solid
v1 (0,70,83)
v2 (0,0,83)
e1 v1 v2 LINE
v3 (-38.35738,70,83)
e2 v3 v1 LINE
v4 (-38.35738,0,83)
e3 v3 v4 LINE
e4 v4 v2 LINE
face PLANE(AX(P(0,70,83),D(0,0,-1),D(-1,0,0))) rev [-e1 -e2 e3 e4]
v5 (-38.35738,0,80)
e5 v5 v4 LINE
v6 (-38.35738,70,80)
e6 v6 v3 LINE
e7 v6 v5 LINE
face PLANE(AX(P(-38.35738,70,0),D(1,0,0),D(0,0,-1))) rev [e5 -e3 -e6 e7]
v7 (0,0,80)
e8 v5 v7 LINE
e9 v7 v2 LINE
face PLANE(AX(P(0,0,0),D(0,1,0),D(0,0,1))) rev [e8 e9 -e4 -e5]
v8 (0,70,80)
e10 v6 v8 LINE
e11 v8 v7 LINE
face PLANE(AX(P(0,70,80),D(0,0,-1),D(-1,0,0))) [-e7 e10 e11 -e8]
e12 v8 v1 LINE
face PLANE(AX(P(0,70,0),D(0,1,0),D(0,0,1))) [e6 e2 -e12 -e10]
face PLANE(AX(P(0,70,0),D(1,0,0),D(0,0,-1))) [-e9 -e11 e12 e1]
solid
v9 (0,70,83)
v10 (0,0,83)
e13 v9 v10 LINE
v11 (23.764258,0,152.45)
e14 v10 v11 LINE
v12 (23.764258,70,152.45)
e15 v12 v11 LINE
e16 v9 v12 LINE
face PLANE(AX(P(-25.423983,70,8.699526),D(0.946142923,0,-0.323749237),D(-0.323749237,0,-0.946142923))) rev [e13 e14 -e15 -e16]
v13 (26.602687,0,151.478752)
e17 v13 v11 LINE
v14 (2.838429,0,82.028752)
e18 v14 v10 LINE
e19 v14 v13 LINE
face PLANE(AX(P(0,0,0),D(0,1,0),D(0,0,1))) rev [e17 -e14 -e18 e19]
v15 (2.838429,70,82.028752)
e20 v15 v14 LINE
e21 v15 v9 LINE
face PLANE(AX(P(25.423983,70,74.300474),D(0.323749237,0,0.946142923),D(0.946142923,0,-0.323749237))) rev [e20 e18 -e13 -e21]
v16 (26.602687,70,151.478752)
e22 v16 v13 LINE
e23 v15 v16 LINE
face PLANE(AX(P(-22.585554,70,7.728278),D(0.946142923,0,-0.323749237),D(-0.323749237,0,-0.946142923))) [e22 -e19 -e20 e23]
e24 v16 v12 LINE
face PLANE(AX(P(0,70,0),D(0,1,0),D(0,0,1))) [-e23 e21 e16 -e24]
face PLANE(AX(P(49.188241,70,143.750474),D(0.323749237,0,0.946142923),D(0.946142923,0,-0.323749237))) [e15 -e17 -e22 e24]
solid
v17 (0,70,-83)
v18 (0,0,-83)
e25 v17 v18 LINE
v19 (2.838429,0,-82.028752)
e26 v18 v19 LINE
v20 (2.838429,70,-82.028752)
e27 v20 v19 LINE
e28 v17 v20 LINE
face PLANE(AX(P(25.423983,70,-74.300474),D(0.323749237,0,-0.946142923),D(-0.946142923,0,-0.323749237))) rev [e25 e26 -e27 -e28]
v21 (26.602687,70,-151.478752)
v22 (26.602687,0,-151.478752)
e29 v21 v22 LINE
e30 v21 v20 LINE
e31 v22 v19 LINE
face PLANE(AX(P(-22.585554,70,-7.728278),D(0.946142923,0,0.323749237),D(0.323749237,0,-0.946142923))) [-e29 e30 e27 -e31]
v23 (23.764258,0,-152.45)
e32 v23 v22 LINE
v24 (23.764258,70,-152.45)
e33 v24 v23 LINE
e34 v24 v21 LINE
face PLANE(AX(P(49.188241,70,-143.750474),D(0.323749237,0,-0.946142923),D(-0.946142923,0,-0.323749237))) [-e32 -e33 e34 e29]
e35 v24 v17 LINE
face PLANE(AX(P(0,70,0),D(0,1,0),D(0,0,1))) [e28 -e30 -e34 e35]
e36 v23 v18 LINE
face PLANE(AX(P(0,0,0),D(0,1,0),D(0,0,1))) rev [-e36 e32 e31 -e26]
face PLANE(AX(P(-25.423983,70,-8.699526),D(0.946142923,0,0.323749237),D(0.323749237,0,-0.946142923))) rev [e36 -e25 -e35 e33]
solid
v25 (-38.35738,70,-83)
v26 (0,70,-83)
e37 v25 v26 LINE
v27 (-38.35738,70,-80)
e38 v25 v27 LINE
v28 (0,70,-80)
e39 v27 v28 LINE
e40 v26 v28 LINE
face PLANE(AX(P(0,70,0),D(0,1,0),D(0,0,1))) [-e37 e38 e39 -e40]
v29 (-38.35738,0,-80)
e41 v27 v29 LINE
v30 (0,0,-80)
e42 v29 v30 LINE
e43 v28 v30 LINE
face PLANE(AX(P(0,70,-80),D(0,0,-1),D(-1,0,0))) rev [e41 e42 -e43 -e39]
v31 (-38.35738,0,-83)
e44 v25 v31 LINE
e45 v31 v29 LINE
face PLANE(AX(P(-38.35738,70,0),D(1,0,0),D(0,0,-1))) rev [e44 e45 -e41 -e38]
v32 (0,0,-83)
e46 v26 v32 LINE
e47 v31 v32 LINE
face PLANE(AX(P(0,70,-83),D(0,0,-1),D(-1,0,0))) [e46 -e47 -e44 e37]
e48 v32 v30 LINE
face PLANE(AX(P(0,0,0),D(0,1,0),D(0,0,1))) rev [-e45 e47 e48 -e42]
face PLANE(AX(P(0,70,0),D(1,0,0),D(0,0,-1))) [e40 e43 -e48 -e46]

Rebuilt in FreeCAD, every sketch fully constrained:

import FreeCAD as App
import Part
import Sketcher

doc = App.newDocument("Part")
body = doc.addObject("PartDesign::Body", "Body")

sketch1 = body.newObject("Sketcher::SketchObject", "Sketch")
sketch1.AttachmentSupport = (doc.getObject("XZ_Plane"), [""])
sketch1.MapMode = "FlatFace"
sketch1.addGeometry(Part.LineSegment(App.Vector(-38.4, 80, 0), App.Vector(-38.4, 83, 0)), False)
sketch1.addGeometry(Part.LineSegment(App.Vector(-38.4, 83, 0), App.Vector(0, 83, 0)), False)
sketch1.addGeometry(Part.LineSegment(App.Vector(0, 83, 0), App.Vector(0, 80, 0)), False)
sketch1.addGeometry(Part.LineSegment(App.Vector(0, 80, 0), App.Vector(-38.4, 80, 0)), False)
sketch1.addConstraint(Sketcher.Constraint("Coincident", 0, 2, 1, 1))
sketch1.addConstraint(Sketcher.Constraint("Coincident", 1, 2, 2, 1))
sketch1.addConstraint(Sketcher.Constraint("Coincident", 2, 2, 3, 1))
sketch1.addConstraint(Sketcher.Constraint("Coincident", 3, 2, 0, 1))
sketch1.addConstraint(Sketcher.Constraint("Vertical", 0))
sketch1.addConstraint(Sketcher.Constraint("Horizontal", 1))
sketch1.addConstraint(Sketcher.Constraint("Vertical", 2))
sketch1.addConstraint(Sketcher.Constraint("Horizontal", 3))
sketch1.addConstraint(Sketcher.Constraint("PointOnObject", 1, 2, -2))
sketch1.addConstraint(Sketcher.Constraint("DistanceY", 0, 1, 0, 2, 3.0))
sketch1.addConstraint(Sketcher.Constraint("DistanceY", -1, 1, 0, 2, 83.0))
sketch1.addConstraint(Sketcher.Constraint("DistanceX", 1, 1, 1, 2, 38.35738))
pad1 = body.newObject("PartDesign::Pad", "Pad")
pad1.Profile = sketch1
pad1.Length = 70
pad1.Reversed = True
body2 = doc.addObject("PartDesign::Body", "Body001")

sketch2 = body2.newObject("Sketcher::SketchObject", "Sketch001")
sketch2.AttachmentSupport = (doc.getObject("XZ_Plane001"), [""])
sketch2.MapMode = "FlatFace"
sketch2.addGeometry(Part.LineSegment(App.Vector(23.8, 152.4, 0), App.Vector(26.6, 151.5, 0)), False)
sketch2.addGeometry(Part.LineSegment(App.Vector(26.6, 151.5, 0), App.Vector(2.8, 82, 0)), False)
sketch2.addGeometry(Part.LineSegment(App.Vector(2.8, 82, 0), App.Vector(0, 83, 0)), False)
sketch2.addGeometry(Part.LineSegment(App.Vector(0, 83, 0), App.Vector(23.8, 152.4, 0)), False)
sketch2.addConstraint(Sketcher.Constraint("Coincident", 0, 2, 1, 1))
sketch2.addConstraint(Sketcher.Constraint("Coincident", 1, 2, 2, 1))
sketch2.addConstraint(Sketcher.Constraint("Coincident", 2, 2, 3, 1))
sketch2.addConstraint(Sketcher.Constraint("Coincident", 3, 2, 0, 1))
sketch2.addConstraint(Sketcher.Constraint("PointOnObject", 2, 2, -2))
sketch2.addConstraint(Sketcher.Constraint("Perpendicular", 0, 1))
sketch2.addConstraint(Sketcher.Constraint("Perpendicular", 1, 2))
sketch2.addConstraint(Sketcher.Constraint("Perpendicular", 2, 3))
sketch2.addConstraint(Sketcher.Constraint("Distance", 0, 3.0))
sketch2.addConstraint(Sketcher.Constraint("DistanceY", -1, 1, 2, 2, 83.0))
sketch2.addConstraint(Sketcher.Constraint("DistanceY", -1, 1, 3, 2, 152.45))
sketch2.addConstraint(Sketcher.Constraint("DistanceX", -1, 1, 1, 2, 2.838429))
pad2 = body2.newObject("PartDesign::Pad", "Pad001")
pad2.Profile = sketch2
pad2.Length = 70
pad2.Reversed = True
body3 = doc.addObject("PartDesign::Body", "Body002")

sketch3 = body3.newObject("Sketcher::SketchObject", "Sketch002")
sketch3.AttachmentSupport = (doc.getObject("XZ_Plane002"), [""])
sketch3.MapMode = "FlatFace"
sketch3.addGeometry(Part.LineSegment(App.Vector(-38.4, -83, 0), App.Vector(-38.4, -80, 0)), False)
sketch3.addGeometry(Part.LineSegment(App.Vector(-38.4, -80, 0), App.Vector(0, -80, 0)), False)
sketch3.addGeometry(Part.LineSegment(App.Vector(0, -80, 0), App.Vector(0, -83, 0)), False)
sketch3.addGeometry(Part.LineSegment(App.Vector(0, -83, 0), App.Vector(-38.4, -83, 0)), False)
sketch3.addConstraint(Sketcher.Constraint("Coincident", 0, 2, 1, 1))
sketch3.addConstraint(Sketcher.Constraint("Coincident", 1, 2, 2, 1))
sketch3.addConstraint(Sketcher.Constraint("Coincident", 2, 2, 3, 1))
sketch3.addConstraint(Sketcher.Constraint("Coincident", 3, 2, 0, 1))
sketch3.addConstraint(Sketcher.Constraint("Vertical", 0))
sketch3.addConstraint(Sketcher.Constraint("Horizontal", 1))
sketch3.addConstraint(Sketcher.Constraint("Vertical", 2))
sketch3.addConstraint(Sketcher.Constraint("Horizontal", 3))
sketch3.addConstraint(Sketcher.Constraint("PointOnObject", 1, 2, -2))
sketch3.addConstraint(Sketcher.Constraint("DistanceY", 0, 1, 0, 2, 3.0))
sketch3.addConstraint(Sketcher.Constraint("DistanceY", 0, 2, -1, 1, 80.0))
sketch3.addConstraint(Sketcher.Constraint("DistanceX", 1, 1, 1, 2, 38.35738))
pad3 = body3.newObject("PartDesign::Pad", "Pad002")
pad3.Profile = sketch3
pad3.Length = 70
pad3.Reversed = True
body4 = doc.addObject("PartDesign::Body", "Body003")

sketch4 = body4.newObject("Sketcher::SketchObject", "Sketch003")
sketch4.AttachmentSupport = (doc.getObject("XZ_Plane003"), [""])
sketch4.MapMode = "FlatFace"
sketch4.addGeometry(Part.LineSegment(App.Vector(2.8, -82, 0), App.Vector(26.6, -151.5, 0)), False)
sketch4.addGeometry(Part.LineSegment(App.Vector(26.6, -151.5, 0), App.Vector(23.8, -152.4, 0)), False)
sketch4.addGeometry(Part.LineSegment(App.Vector(23.8, -152.4, 0), App.Vector(0, -83, 0)), False)
sketch4.addGeometry(Part.LineSegment(App.Vector(0, -83, 0), App.Vector(2.8, -82, 0)), False)
sketch4.addConstraint(Sketcher.Constraint("Coincident", 0, 2, 1, 1))
sketch4.addConstraint(Sketcher.Constraint("Coincident", 1, 2, 2, 1))
sketch4.addConstraint(Sketcher.Constraint("Coincident", 2, 2, 3, 1))
sketch4.addConstraint(Sketcher.Constraint("Coincident", 3, 2, 0, 1))
sketch4.addConstraint(Sketcher.Constraint("PointOnObject", 2, 2, -2))
sketch4.addConstraint(Sketcher.Constraint("Perpendicular", 0, 1))
sketch4.addConstraint(Sketcher.Constraint("Perpendicular", 1, 2))
sketch4.addConstraint(Sketcher.Constraint("Perpendicular", 2, 3))
sketch4.addConstraint(Sketcher.Constraint("Distance", 1, 3.0))
sketch4.addConstraint(Sketcher.Constraint("DistanceY", 2, 2, -1, 1, 83.0))
sketch4.addConstraint(Sketcher.Constraint("DistanceY", 1, 2, -1, 1, 152.45))
sketch4.addConstraint(Sketcher.Constraint("DistanceX", -1, 1, 3, 2, 2.838429))
pad4 = body4.newObject("PartDesign::Pad", "Pad003")
pad4.Profile = sketch4
pad4.Length = 70
pad4.Reversed = True

doc.recompute()
